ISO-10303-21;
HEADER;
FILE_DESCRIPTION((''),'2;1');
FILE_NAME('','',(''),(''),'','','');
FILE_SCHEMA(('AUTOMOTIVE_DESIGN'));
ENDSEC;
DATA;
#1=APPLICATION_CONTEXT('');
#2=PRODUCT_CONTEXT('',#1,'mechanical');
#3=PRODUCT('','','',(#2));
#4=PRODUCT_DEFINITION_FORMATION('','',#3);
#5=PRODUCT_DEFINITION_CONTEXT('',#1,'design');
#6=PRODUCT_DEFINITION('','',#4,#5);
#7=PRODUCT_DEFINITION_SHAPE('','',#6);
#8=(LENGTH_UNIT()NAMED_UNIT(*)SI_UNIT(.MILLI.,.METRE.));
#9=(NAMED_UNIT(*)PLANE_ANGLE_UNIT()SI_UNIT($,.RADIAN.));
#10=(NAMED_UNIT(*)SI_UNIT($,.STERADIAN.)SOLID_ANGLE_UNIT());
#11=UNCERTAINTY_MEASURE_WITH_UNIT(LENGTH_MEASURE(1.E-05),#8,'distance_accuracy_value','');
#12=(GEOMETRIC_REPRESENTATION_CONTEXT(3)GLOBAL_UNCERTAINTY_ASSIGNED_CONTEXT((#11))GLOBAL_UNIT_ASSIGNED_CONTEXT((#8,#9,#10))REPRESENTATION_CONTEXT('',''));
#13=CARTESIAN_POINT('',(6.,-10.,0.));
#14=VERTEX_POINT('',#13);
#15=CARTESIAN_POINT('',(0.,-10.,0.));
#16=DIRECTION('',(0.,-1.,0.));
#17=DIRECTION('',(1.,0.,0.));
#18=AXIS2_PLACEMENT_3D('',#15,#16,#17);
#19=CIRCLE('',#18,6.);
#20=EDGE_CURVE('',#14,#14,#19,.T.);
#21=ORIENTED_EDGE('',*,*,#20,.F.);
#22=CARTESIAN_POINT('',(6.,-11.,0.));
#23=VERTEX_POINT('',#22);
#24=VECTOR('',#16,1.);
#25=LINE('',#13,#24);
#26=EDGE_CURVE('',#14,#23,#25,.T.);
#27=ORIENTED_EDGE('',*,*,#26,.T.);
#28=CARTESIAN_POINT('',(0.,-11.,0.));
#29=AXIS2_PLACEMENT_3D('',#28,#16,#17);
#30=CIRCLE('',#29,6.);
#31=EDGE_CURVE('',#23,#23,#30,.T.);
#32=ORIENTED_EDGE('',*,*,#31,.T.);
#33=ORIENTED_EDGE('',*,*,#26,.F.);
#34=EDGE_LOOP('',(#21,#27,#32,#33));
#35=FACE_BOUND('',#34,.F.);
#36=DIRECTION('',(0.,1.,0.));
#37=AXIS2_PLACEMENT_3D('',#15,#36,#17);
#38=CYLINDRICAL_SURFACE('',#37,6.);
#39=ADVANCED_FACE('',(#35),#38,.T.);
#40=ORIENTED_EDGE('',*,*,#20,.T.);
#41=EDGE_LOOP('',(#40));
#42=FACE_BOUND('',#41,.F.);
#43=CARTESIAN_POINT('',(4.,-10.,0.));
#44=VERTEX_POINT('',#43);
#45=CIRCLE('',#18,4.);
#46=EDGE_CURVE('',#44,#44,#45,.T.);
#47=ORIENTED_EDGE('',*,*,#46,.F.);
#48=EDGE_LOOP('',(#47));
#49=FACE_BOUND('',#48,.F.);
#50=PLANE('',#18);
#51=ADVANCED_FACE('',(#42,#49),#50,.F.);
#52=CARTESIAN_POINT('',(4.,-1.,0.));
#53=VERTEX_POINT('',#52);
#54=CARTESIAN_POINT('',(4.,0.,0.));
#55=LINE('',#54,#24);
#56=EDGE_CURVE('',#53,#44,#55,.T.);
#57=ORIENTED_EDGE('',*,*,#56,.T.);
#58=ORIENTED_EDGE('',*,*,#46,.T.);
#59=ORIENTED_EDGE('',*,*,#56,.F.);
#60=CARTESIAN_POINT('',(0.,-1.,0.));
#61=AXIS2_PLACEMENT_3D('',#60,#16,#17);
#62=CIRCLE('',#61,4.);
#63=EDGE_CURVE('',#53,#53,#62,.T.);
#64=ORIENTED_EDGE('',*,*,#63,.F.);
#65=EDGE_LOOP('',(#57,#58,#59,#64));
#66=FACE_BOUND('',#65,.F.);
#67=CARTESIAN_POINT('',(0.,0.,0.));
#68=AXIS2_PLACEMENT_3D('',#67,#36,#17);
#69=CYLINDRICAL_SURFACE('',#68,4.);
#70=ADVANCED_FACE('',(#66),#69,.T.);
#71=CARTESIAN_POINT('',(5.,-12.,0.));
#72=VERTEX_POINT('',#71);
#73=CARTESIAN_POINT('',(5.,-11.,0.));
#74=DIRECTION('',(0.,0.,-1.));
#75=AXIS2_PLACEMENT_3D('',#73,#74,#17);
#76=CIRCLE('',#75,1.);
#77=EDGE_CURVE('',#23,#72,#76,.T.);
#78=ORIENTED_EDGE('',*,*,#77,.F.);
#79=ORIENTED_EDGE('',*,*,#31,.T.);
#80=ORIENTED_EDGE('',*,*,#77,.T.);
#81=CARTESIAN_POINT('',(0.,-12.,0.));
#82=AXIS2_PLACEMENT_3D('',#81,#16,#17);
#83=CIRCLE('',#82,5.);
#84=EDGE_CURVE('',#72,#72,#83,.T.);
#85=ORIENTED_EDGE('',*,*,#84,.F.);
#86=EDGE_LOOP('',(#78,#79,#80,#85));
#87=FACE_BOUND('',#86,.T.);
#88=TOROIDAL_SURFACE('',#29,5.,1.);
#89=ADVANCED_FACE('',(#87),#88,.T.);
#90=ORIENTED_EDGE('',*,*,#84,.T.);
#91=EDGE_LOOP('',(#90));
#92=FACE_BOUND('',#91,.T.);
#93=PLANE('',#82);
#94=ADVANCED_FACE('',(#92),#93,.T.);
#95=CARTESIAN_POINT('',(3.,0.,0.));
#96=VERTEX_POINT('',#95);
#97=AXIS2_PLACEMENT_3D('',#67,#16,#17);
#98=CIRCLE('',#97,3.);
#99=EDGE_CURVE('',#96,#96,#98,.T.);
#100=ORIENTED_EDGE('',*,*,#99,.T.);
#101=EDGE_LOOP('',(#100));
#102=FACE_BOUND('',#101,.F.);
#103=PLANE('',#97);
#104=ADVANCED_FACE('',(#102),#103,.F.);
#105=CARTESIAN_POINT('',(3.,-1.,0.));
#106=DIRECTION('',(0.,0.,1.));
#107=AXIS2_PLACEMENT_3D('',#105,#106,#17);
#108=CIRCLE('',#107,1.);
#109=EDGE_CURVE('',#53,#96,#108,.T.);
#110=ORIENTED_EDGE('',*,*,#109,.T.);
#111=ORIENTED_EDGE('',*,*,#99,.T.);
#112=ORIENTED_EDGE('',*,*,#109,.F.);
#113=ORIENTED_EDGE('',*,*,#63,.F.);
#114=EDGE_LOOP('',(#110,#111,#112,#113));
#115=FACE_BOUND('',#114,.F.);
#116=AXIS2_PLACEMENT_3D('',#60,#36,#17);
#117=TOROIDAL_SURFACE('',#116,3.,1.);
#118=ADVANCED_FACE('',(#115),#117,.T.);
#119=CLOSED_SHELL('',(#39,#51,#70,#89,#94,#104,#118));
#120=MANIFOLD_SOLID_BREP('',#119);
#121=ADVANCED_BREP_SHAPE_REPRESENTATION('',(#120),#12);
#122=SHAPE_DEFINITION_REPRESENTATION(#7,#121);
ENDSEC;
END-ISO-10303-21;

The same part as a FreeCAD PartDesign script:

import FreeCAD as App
import Part
import Sketcher

V = App.Vector
Q = App.Units.Quantity


def edges_at(feature, points):
    """Names of the edges that pass closest to the given points."""
    edges = feature.Shape.Edges
    near = lambda p: min(range(len(edges)), key=lambda i: edges[i].distToShape(Part.Vertex(*p))[0])
    return sorted({f"Edge{near(p) + 1}" for p in points})

doc = App.newDocument("Part")
params = doc.addObject("Spreadsheet::Sheet", "Params")
for row, (alias, value) in enumerate([
    ("sketch1_diameter", "8 mm"),
    ("pad1_length", "10 mm"),
    ("sketch2_diameter", "12 mm"),
    ("pad2_length", "2 mm"),
    ("fillet_radius", "1 mm"),
], start=1):
    params.set(f"A{row}", alias)
    params.set(f"B{row}", "=" + value)
    params.setAlias(f"B{row}", alias)

body = doc.addObject("PartDesign::Body", "Body")

sketch1 = body.newObject("Sketcher::SketchObject", "Sketch")
sketch1.AttachmentSupport = (doc.getObject("XZ_Plane"), [""])
sketch1.MapMode = "FlatFace"
sketch1.addGeometry(Part.Circle(V(0, 0, 0), V(0, 0, 1), 4), False)
sketch1.addConstraint([
    Sketcher.Constraint("Coincident", 0, 3, -1, 1),
    Sketcher.Constraint("Diameter", 0, Q("8 mm")),
])
sketch1.setExpression("Constraints[1]", "Params.sketch1_diameter")
pad1 = body.newObject("PartDesign::Pad", "Pad")
pad1.Profile = sketch1
pad1.setExpression("Length", "Params.pad1_length")

sketch2 = body.newObject("Sketcher::SketchObject", "Sketch001")
sketch2.AttachmentSupport = (doc.getObject("XZ_Plane"), [""])
sketch2.MapMode = "FlatFace"
sketch2.AttachmentOffset = App.Placement(V(0, 0, 10), App.Rotation())
sketch2.addGeometry(Part.Circle(V(0, 0, 0), V(0, 0, 1), 6), False)
sketch2.addConstraint([
    Sketcher.Constraint("Coincident", 0, 3, -1, 1),
    Sketcher.Constraint("Diameter", 0, Q("12 mm")),
])
sketch2.setExpression("Constraints[1]", "Params.sketch2_diameter")
pad2 = body.newObject("PartDesign::Pad", "Pad001")
pad2.Profile = sketch2
pad2.setExpression("Length", "Params.pad2_length")
doc.recompute()

fillet = body.newObject("PartDesign::Fillet", "Fillet")
fillet.Base = (pad2, edges_at(pad2, [(-4, 0, 0), (-6, -12, 0)]))
fillet.setExpression("Radius", "Params.fillet_radius")

doc.recompute()
